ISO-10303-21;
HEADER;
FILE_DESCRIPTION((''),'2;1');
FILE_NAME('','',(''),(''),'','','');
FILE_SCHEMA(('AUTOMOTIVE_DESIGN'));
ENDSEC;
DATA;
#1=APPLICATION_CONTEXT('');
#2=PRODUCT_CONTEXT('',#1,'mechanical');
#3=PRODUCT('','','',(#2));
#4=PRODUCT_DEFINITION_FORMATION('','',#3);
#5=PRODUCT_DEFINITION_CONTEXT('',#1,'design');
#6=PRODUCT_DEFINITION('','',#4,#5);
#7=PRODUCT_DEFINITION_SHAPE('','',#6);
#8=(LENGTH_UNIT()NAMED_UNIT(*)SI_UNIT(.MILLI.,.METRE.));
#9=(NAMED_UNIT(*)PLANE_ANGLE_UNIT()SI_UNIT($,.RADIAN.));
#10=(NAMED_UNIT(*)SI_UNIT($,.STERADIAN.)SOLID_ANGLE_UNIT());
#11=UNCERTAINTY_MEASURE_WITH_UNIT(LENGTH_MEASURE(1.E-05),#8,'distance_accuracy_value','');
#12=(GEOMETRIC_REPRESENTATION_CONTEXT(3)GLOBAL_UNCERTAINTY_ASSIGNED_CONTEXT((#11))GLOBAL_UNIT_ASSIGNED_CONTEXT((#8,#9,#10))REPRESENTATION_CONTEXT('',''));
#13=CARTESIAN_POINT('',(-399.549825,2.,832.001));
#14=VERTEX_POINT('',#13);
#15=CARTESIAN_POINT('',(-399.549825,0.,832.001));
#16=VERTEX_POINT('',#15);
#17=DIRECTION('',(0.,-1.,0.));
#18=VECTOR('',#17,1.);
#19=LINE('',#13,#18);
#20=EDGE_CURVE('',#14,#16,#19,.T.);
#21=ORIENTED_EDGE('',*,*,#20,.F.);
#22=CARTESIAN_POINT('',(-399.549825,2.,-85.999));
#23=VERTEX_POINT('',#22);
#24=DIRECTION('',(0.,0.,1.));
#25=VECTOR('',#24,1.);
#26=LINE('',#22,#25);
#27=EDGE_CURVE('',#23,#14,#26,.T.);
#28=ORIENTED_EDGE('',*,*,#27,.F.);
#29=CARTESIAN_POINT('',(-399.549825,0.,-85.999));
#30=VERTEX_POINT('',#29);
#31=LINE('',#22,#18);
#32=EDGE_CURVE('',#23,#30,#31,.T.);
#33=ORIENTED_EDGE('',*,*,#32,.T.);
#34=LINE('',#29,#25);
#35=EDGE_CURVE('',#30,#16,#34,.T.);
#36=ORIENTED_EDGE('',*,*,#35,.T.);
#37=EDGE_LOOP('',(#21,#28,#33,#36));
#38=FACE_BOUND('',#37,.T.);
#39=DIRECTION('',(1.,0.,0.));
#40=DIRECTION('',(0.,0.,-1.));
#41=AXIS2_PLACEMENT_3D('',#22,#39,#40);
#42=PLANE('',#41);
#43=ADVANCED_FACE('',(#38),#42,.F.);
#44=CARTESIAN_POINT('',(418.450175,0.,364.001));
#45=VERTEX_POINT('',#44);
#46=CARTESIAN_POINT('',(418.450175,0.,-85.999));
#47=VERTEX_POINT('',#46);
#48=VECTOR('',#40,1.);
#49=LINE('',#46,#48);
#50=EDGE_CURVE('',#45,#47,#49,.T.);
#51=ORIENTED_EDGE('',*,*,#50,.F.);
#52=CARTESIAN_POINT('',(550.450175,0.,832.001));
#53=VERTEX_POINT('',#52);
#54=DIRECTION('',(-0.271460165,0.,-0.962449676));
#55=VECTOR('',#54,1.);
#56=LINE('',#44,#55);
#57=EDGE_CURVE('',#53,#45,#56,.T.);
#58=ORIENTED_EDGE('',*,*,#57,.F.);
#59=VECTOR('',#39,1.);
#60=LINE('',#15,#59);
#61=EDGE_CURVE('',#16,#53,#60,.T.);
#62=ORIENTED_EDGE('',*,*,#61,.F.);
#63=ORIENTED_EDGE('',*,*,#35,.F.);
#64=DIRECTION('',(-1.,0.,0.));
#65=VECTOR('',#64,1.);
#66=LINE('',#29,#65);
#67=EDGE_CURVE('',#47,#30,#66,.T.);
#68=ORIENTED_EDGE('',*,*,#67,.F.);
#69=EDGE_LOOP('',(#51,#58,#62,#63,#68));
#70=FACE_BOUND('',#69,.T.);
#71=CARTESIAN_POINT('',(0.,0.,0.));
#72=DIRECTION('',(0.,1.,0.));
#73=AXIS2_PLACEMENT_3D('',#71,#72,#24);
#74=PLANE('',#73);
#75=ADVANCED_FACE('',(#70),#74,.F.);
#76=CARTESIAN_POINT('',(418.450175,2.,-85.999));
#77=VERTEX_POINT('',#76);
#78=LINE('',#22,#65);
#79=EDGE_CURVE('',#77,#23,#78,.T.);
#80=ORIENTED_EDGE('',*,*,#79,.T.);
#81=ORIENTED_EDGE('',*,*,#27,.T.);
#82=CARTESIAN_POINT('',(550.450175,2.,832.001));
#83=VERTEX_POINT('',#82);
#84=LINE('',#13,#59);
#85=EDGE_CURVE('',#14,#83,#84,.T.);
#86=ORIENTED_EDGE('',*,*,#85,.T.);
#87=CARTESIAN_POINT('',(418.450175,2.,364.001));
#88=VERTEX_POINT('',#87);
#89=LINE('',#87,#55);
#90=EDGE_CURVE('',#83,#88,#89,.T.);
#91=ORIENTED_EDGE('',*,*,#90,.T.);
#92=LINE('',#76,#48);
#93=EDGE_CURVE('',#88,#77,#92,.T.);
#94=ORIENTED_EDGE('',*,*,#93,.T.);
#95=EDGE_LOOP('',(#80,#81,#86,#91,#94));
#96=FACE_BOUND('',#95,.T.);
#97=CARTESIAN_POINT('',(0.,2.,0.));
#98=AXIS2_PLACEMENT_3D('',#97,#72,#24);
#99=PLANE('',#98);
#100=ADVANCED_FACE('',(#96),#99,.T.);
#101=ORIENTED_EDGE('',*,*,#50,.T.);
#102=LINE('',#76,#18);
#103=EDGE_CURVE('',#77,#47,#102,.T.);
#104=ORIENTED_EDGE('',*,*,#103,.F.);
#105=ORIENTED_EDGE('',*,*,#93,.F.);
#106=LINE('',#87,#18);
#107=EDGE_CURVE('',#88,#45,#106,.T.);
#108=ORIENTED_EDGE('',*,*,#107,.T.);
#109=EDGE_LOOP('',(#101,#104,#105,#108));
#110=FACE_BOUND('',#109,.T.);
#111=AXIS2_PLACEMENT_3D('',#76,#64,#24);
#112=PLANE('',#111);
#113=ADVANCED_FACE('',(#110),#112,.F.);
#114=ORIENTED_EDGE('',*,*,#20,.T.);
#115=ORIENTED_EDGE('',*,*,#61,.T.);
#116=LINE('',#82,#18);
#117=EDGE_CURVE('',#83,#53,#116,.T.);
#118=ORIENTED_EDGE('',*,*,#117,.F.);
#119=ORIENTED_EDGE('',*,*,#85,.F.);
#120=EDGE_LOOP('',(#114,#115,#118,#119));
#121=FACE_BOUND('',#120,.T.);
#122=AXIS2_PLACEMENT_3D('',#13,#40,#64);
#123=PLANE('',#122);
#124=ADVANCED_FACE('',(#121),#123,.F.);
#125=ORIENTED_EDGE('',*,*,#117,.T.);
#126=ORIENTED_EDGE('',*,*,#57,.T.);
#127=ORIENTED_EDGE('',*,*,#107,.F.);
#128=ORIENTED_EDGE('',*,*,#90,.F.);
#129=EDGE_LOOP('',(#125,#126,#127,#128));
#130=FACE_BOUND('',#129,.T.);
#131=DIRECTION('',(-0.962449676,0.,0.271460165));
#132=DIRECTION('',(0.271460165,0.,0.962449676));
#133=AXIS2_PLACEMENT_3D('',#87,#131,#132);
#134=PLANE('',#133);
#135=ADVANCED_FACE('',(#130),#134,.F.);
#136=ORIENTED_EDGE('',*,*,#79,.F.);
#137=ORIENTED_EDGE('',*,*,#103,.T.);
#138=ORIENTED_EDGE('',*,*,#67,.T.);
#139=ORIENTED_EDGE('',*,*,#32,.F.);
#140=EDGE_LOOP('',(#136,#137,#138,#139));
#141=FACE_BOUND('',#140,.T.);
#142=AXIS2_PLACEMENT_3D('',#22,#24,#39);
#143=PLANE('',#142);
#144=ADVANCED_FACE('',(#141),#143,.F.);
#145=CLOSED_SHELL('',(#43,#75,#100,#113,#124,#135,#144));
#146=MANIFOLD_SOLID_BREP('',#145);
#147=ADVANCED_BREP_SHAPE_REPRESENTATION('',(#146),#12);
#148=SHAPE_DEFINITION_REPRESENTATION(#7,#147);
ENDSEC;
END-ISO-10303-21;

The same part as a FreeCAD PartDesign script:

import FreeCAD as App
import Part
import Sketcher
Q = App.Units.Quantity

doc = App.newDocument("Part")
params = doc.addObject("Spreadsheet::Sheet", "Params")
for row, (alias, value) in enumerate([
    ("sketch1_width", "818 mm"),
    ("sketch1_width2", "950 mm"),
    ("sketch1_height", "450 mm"),
    ("sketch1_height2", "918 mm"),
    ("pad1_length", "2 mm"),
], start=1):
    params.set(f"A{row}", alias)
    params.set(f"B{row}", "=" + value)
    params.setAlias(f"B{row}", alias)

body = doc.addObject("PartDesign::Body", "Body")

# Sketch on XZ plane
sketch1 = body.newObject("Sketcher::SketchObject", "Sketch")
sketch1.AttachmentSupport = (doc.getObject("XZ_Plane"), [""])
sketch1.MapMode = "FlatFace"
sketch1.addGeometry(Part.LineSegment(App.Vector(418.450175, 364.001, 0), App.Vector(418.450175, -85.999, 0)), False)
sketch1.addGeometry(Part.LineSegment(App.Vector(418.450175, -85.999, 0), App.Vector(-399.549825, -85.999, 0)), False)
sketch1.addGeometry(Part.LineSegment(App.Vector(-399.549825, -85.999, 0), App.Vector(-399.549825, 832.001, 0)), False)
sketch1.addGeometry(Part.LineSegment(App.Vector(-399.549825, 832.001, 0), App.Vector(550.450175, 832.001, 0)), False)
sketch1.addGeometry(Part.LineSegment(App.Vector(550.450175, 832.001, 0), App.Vector(418.450175, 364.001, 0)), False)
sketch1.addConstraint(Sketcher.Constraint("Coincident", 0, 2, 1, 1))
sketch1.addConstraint(Sketcher.Constraint("Coincident", 1, 2, 2, 1))
sketch1.addConstraint(Sketcher.Constraint("Coincident", 2, 2, 3, 1))
sketch1.addConstraint(Sketcher.Constraint("Coincident", 3, 2, 4, 1))
sketch1.addConstraint(Sketcher.Constraint("Coincident", 4, 2, 0, 1))
sketch1.addConstraint(Sketcher.Constraint("Vertical", 0))
sketch1.addConstraint(Sketcher.Constraint("Horizontal", 1))
sketch1.addConstraint(Sketcher.Constraint("Vertical", 2))
sketch1.addConstraint(Sketcher.Constraint("Horizontal", 3))
sketch1.addConstraint(Sketcher.Constraint("DistanceX", 1, 2, 1, 1, Q("818 mm")))
sketch1.addConstraint(Sketcher.Constraint("DistanceX", 3, 1, 3, 2, Q("950 mm")))
sketch1.addConstraint(Sketcher.Constraint("DistanceY", 0, 2, 0, 1, Q("450 mm")))
sketch1.addConstraint(Sketcher.Constraint("DistanceY", 2, 1, 2, 2, Q("918 mm")))
sketch1.addConstraint(Sketcher.Constraint("DistanceY", 0, 2, -1, 1, Q("85.999 mm")))
sketch1.addConstraint(Sketcher.Constraint("DistanceX", -1, 1, 0, 2, Q("418.450175 mm")))
sketch1.setExpression("Constraints[9]", "Params.sketch1_width")
sketch1.setExpression("Constraints[10]", "Params.sketch1_width2")
sketch1.setExpression("Constraints[11]", "Params.sketch1_height")
sketch1.setExpression("Constraints[12]", "Params.sketch1_height2")
pad1 = body.newObject("PartDesign::Pad", "Pad")
pad1.Profile = sketch1
pad1.setExpression("Length", "Params.pad1_length")
pad1.Reversed = True

doc.recompute()
